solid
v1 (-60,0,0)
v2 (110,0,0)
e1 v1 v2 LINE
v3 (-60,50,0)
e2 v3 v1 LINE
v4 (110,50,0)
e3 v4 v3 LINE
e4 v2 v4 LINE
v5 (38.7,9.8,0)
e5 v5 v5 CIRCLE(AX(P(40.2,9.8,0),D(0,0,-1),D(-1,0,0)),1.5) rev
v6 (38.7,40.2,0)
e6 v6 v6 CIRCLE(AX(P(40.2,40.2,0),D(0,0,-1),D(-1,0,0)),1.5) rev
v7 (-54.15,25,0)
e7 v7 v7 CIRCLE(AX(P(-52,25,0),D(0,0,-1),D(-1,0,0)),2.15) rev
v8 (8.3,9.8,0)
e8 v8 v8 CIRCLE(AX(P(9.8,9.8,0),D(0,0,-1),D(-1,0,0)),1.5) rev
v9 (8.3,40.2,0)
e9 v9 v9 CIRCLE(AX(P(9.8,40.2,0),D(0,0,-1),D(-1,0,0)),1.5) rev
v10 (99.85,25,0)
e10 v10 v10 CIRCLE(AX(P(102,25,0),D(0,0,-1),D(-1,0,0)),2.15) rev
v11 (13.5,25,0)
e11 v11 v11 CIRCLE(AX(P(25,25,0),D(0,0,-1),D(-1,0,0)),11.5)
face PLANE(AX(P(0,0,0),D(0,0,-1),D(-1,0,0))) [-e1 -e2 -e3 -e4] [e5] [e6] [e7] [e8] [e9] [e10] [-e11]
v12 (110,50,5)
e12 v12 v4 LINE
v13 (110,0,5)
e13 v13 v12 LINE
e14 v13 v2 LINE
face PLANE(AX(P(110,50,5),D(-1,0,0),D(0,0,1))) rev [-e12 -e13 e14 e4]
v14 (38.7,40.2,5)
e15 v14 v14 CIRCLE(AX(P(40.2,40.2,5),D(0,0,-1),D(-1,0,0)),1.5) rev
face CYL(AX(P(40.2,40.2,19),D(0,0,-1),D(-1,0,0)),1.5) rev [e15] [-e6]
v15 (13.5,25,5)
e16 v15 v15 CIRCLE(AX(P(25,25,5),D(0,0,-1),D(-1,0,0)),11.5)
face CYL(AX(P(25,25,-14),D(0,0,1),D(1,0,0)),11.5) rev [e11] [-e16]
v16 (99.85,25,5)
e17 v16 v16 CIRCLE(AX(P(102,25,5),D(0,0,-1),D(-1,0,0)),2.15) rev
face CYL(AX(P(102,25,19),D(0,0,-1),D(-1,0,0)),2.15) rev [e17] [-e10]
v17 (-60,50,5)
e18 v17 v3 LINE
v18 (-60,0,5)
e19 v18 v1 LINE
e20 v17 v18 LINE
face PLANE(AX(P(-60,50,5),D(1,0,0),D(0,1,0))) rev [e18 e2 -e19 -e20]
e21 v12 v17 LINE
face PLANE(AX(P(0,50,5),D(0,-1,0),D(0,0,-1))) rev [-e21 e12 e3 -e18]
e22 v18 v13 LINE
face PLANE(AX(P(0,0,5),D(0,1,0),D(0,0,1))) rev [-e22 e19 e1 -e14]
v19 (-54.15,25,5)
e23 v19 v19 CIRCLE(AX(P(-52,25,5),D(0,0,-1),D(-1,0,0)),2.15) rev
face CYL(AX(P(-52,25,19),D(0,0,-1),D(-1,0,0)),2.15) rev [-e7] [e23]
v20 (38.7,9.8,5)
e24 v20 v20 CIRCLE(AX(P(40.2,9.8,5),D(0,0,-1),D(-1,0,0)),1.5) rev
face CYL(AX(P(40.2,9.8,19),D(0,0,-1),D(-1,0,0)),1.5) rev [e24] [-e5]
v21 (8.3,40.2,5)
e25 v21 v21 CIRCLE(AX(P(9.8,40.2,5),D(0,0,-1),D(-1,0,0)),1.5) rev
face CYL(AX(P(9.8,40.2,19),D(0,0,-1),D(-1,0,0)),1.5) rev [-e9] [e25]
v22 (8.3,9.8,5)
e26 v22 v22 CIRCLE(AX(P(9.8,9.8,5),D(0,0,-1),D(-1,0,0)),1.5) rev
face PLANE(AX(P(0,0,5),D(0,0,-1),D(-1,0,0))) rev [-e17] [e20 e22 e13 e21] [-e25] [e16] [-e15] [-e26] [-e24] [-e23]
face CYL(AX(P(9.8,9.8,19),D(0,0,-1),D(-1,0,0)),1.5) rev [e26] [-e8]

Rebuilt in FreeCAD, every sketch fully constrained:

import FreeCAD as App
import Part
import Sketcher


def add_polygon(sketch, points):
    """Adds a closed chain of lines whose ends are joined by coincident constraints."""
    first, n = sketch.GeometryCount, len(points)
    for a, b in zip(points, points[1:] + points[:1]):
        sketch.addGeometry(Part.LineSegment(App.Vector(*a, 0), App.Vector(*b, 0)), False)
    for i in range(n):
        sketch.addConstraint(Sketcher.Constraint("Coincident", first + i, 2, first + (i + 1) % n, 1))

doc = App.newDocument("Part")
body = doc.addObject("PartDesign::Body", "Body")

# Sketch on XY plane
sketch1 = body.newObject("Sketcher::SketchObject", "Sketch")
sketch1.AttachmentSupport = (doc.getObject("XY_Plane"), [""])
sketch1.MapMode = "FlatFace"
add_polygon(sketch1, [(0, 50), (0, 0), (50, 0), (50, 50)])  # lines 0-3
sketch1.addConstraint(Sketcher.Constraint("Vertical", 0))
sketch1.addConstraint(Sketcher.Constraint("Horizontal", 1))
sketch1.addConstraint(Sketcher.Constraint("Vertical", 2))
sketch1.addConstraint(Sketcher.Constraint("Horizontal", 3))
sketch1.addConstraint(Sketcher.Constraint("Coincident", 0, 2, -1, 1))
sketch1.addConstraint(Sketcher.Constraint("Equal", 3, 0))
sketch1.addConstraint(Sketcher.Constraint("DistanceX", 1, 1, 1, 2, 50.0))
pad1 = body.newObject("PartDesign::Pad", "Pad")
pad1.Profile = sketch1
pad1.Length = 5

# Sketch on XY plane
sketch2 = body.newObject("Sketcher::SketchObject", "Sketch001")
sketch2.AttachmentSupport = (doc.getObject("XY_Plane"), [""])
sketch2.MapMode = "FlatFace"
sketch2.addGeometry(Part.Circle(App.Vector(25, 25, 0), App.Vector(0, 0, 1), 12), False)
sketch2.addConstraint(Sketcher.Constraint("Diameter", 0, 23.0))
sketch2.addConstraint(Sketcher.Constraint("DistanceX", -1, 1, 0, 3, 25.0))
sketch2.addConstraint(Sketcher.Constraint("DistanceY", -1, 1, 0, 3, 25.0))
pocket1 = body.newObject("PartDesign::Pocket", "Pocket")
pocket1.Profile = sketch2
pocket1.Type = "ThroughAll"
pocket1.Midplane = True

# Sketch on XY plane
sketch3 = body.newObject("Sketcher::SketchObject", "Sketch002")
sketch3.AttachmentSupport = (doc.getObject("XY_Plane"), [""])
sketch3.MapMode = "FlatFace"
add_polygon(sketch3, [(-60, 50), (-60, 0), (0, 0), (0, 50)])  # lines 0-3
add_polygon(sketch3, [(50, 50), (50, 0), (110, 0), (110, 50)])  # lines 4-7
sketch3.addConstraint(Sketcher.Constraint("Vertical", 0))
sketch3.addConstraint(Sketcher.Constraint("Horizontal", 1))
sketch3.addConstraint(Sketcher.Constraint("Vertical", 2))
sketch3.addConstraint(Sketcher.Constraint("Horizontal", 3))
sketch3.addConstraint(Sketcher.Constraint("Vertical", 4))
sketch3.addConstraint(Sketcher.Constraint("Horizontal", 5))
sketch3.addConstraint(Sketcher.Constraint("Vertical", 6))
sketch3.addConstraint(Sketcher.Constraint("Horizontal", 7))
sketch3.addConstraint(Sketcher.Constraint("Coincident", 1, 2, -1, 1))
sketch3.addConstraint(Sketcher.Constraint("PointOnObject", 4, 2, -1))
sketch3.addConstraint(Sketcher.Constraint("Horizontal", 3, 2, 6, 2))
sketch3.addConstraint(Sketcher.Constraint("Equal", 3, 5))
sketch3.addConstraint(Sketcher.Constraint("DistanceX", 1, 1, 1, 2, 60.0))
sketch3.addConstraint(Sketcher.Constraint("DistanceY", 0, 2, 0, 1, 50.0))
sketch3.addConstraint(Sketcher.Constraint("DistanceX", -1, 1, 4, 2, 50.0))
pad2 = body.newObject("PartDesign::Pad", "Pad001")
pad2.Profile = sketch3
pad2.Length = 5

# Sketch on XY plane
sketch4 = body.newObject("Sketcher::SketchObject", "Sketch003")
sketch4.AttachmentSupport = (doc.getObject("XY_Plane"), [""])
sketch4.MapMode = "FlatFace"
sketch4.addGeometry(Part.Circle(App.Vector(-52, 25, 0), App.Vector(0, 0, 1), 2.1), False)
sketch4.addGeometry(Part.Circle(App.Vector(102, 25, 0), App.Vector(0, 0, 1), 2.1), False)
sketch4.addGeometry(Part.Circle(App.Vector(9.8, 40.2, 0), App.Vector(0, 0, 1), 1.5), False)
sketch4.addGeometry(Part.Circle(App.Vector(40.2, 40.2, 0), App.Vector(0, 0, 1), 1.5), False)
sketch4.addGeometry(Part.Circle(App.Vector(40.2, 9.8, 0), App.Vector(0, 0, 1), 1.5), False)
sketch4.addGeometry(Part.Circle(App.Vector(9.8, 9.8, 0), App.Vector(0, 0, 1), 1.5), False)
sketch4.addConstraint(Sketcher.Constraint("Equal", 0, 1))
sketch4.addConstraint(Sketcher.Constraint("Equal", 2, 3))
sketch4.addConstraint(Sketcher.Constraint("Equal", 3, 4))
sketch4.addConstraint(Sketcher.Constraint("Equal", 4, 5))
sketch4.addConstraint(Sketcher.Constraint("Horizontal", 0, 3, 1, 3))
sketch4.addConstraint(Sketcher.Constraint("Horizontal", 2, 3, 3, 3))
sketch4.addConstraint(Sketcher.Constraint("Horizontal", 4, 3, 5, 3))
sketch4.addConstraint(Sketcher.Constraint("Vertical", 3, 3, 4, 3))
sketch4.addConstraint(Sketcher.Constraint("Vertical", 2, 3, 5, 3))
sketch4.addConstraint(Sketcher.Constraint("Diameter", 2, 3.0))
sketch4.addConstraint(Sketcher.Constraint("Diameter", 0, 4.3))
sketch4.addConstraint(Sketcher.Constraint("DistanceX", 0, 3, -1, 1, 52.0))
sketch4.addConstraint(Sketcher.Constraint("DistanceY", -1, 1, 0, 3, 25.0))
sketch4.addConstraint(Sketcher.Constraint("DistanceX", -1, 1, 1, 3, 102.0))
sketch4.addConstraint(Sketcher.Constraint("DistanceX", -1, 1, 2, 3, 9.8))
sketch4.addConstraint(Sketcher.Constraint("DistanceY", -1, 1, 2, 3, 40.2))
sketch4.addConstraint(Sketcher.Constraint("DistanceX", -1, 1, 3, 3, 40.2))
sketch4.addConstraint(Sketcher.Constraint("DistanceY", -1, 1, 4, 3, 9.8))
pocket2 = body.newObject("PartDesign::Pocket", "Pocket001")
pocket2.Profile = sketch4
pocket2.Type = "ThroughAll"
pocket2.Midplane = True

doc.recompute()
